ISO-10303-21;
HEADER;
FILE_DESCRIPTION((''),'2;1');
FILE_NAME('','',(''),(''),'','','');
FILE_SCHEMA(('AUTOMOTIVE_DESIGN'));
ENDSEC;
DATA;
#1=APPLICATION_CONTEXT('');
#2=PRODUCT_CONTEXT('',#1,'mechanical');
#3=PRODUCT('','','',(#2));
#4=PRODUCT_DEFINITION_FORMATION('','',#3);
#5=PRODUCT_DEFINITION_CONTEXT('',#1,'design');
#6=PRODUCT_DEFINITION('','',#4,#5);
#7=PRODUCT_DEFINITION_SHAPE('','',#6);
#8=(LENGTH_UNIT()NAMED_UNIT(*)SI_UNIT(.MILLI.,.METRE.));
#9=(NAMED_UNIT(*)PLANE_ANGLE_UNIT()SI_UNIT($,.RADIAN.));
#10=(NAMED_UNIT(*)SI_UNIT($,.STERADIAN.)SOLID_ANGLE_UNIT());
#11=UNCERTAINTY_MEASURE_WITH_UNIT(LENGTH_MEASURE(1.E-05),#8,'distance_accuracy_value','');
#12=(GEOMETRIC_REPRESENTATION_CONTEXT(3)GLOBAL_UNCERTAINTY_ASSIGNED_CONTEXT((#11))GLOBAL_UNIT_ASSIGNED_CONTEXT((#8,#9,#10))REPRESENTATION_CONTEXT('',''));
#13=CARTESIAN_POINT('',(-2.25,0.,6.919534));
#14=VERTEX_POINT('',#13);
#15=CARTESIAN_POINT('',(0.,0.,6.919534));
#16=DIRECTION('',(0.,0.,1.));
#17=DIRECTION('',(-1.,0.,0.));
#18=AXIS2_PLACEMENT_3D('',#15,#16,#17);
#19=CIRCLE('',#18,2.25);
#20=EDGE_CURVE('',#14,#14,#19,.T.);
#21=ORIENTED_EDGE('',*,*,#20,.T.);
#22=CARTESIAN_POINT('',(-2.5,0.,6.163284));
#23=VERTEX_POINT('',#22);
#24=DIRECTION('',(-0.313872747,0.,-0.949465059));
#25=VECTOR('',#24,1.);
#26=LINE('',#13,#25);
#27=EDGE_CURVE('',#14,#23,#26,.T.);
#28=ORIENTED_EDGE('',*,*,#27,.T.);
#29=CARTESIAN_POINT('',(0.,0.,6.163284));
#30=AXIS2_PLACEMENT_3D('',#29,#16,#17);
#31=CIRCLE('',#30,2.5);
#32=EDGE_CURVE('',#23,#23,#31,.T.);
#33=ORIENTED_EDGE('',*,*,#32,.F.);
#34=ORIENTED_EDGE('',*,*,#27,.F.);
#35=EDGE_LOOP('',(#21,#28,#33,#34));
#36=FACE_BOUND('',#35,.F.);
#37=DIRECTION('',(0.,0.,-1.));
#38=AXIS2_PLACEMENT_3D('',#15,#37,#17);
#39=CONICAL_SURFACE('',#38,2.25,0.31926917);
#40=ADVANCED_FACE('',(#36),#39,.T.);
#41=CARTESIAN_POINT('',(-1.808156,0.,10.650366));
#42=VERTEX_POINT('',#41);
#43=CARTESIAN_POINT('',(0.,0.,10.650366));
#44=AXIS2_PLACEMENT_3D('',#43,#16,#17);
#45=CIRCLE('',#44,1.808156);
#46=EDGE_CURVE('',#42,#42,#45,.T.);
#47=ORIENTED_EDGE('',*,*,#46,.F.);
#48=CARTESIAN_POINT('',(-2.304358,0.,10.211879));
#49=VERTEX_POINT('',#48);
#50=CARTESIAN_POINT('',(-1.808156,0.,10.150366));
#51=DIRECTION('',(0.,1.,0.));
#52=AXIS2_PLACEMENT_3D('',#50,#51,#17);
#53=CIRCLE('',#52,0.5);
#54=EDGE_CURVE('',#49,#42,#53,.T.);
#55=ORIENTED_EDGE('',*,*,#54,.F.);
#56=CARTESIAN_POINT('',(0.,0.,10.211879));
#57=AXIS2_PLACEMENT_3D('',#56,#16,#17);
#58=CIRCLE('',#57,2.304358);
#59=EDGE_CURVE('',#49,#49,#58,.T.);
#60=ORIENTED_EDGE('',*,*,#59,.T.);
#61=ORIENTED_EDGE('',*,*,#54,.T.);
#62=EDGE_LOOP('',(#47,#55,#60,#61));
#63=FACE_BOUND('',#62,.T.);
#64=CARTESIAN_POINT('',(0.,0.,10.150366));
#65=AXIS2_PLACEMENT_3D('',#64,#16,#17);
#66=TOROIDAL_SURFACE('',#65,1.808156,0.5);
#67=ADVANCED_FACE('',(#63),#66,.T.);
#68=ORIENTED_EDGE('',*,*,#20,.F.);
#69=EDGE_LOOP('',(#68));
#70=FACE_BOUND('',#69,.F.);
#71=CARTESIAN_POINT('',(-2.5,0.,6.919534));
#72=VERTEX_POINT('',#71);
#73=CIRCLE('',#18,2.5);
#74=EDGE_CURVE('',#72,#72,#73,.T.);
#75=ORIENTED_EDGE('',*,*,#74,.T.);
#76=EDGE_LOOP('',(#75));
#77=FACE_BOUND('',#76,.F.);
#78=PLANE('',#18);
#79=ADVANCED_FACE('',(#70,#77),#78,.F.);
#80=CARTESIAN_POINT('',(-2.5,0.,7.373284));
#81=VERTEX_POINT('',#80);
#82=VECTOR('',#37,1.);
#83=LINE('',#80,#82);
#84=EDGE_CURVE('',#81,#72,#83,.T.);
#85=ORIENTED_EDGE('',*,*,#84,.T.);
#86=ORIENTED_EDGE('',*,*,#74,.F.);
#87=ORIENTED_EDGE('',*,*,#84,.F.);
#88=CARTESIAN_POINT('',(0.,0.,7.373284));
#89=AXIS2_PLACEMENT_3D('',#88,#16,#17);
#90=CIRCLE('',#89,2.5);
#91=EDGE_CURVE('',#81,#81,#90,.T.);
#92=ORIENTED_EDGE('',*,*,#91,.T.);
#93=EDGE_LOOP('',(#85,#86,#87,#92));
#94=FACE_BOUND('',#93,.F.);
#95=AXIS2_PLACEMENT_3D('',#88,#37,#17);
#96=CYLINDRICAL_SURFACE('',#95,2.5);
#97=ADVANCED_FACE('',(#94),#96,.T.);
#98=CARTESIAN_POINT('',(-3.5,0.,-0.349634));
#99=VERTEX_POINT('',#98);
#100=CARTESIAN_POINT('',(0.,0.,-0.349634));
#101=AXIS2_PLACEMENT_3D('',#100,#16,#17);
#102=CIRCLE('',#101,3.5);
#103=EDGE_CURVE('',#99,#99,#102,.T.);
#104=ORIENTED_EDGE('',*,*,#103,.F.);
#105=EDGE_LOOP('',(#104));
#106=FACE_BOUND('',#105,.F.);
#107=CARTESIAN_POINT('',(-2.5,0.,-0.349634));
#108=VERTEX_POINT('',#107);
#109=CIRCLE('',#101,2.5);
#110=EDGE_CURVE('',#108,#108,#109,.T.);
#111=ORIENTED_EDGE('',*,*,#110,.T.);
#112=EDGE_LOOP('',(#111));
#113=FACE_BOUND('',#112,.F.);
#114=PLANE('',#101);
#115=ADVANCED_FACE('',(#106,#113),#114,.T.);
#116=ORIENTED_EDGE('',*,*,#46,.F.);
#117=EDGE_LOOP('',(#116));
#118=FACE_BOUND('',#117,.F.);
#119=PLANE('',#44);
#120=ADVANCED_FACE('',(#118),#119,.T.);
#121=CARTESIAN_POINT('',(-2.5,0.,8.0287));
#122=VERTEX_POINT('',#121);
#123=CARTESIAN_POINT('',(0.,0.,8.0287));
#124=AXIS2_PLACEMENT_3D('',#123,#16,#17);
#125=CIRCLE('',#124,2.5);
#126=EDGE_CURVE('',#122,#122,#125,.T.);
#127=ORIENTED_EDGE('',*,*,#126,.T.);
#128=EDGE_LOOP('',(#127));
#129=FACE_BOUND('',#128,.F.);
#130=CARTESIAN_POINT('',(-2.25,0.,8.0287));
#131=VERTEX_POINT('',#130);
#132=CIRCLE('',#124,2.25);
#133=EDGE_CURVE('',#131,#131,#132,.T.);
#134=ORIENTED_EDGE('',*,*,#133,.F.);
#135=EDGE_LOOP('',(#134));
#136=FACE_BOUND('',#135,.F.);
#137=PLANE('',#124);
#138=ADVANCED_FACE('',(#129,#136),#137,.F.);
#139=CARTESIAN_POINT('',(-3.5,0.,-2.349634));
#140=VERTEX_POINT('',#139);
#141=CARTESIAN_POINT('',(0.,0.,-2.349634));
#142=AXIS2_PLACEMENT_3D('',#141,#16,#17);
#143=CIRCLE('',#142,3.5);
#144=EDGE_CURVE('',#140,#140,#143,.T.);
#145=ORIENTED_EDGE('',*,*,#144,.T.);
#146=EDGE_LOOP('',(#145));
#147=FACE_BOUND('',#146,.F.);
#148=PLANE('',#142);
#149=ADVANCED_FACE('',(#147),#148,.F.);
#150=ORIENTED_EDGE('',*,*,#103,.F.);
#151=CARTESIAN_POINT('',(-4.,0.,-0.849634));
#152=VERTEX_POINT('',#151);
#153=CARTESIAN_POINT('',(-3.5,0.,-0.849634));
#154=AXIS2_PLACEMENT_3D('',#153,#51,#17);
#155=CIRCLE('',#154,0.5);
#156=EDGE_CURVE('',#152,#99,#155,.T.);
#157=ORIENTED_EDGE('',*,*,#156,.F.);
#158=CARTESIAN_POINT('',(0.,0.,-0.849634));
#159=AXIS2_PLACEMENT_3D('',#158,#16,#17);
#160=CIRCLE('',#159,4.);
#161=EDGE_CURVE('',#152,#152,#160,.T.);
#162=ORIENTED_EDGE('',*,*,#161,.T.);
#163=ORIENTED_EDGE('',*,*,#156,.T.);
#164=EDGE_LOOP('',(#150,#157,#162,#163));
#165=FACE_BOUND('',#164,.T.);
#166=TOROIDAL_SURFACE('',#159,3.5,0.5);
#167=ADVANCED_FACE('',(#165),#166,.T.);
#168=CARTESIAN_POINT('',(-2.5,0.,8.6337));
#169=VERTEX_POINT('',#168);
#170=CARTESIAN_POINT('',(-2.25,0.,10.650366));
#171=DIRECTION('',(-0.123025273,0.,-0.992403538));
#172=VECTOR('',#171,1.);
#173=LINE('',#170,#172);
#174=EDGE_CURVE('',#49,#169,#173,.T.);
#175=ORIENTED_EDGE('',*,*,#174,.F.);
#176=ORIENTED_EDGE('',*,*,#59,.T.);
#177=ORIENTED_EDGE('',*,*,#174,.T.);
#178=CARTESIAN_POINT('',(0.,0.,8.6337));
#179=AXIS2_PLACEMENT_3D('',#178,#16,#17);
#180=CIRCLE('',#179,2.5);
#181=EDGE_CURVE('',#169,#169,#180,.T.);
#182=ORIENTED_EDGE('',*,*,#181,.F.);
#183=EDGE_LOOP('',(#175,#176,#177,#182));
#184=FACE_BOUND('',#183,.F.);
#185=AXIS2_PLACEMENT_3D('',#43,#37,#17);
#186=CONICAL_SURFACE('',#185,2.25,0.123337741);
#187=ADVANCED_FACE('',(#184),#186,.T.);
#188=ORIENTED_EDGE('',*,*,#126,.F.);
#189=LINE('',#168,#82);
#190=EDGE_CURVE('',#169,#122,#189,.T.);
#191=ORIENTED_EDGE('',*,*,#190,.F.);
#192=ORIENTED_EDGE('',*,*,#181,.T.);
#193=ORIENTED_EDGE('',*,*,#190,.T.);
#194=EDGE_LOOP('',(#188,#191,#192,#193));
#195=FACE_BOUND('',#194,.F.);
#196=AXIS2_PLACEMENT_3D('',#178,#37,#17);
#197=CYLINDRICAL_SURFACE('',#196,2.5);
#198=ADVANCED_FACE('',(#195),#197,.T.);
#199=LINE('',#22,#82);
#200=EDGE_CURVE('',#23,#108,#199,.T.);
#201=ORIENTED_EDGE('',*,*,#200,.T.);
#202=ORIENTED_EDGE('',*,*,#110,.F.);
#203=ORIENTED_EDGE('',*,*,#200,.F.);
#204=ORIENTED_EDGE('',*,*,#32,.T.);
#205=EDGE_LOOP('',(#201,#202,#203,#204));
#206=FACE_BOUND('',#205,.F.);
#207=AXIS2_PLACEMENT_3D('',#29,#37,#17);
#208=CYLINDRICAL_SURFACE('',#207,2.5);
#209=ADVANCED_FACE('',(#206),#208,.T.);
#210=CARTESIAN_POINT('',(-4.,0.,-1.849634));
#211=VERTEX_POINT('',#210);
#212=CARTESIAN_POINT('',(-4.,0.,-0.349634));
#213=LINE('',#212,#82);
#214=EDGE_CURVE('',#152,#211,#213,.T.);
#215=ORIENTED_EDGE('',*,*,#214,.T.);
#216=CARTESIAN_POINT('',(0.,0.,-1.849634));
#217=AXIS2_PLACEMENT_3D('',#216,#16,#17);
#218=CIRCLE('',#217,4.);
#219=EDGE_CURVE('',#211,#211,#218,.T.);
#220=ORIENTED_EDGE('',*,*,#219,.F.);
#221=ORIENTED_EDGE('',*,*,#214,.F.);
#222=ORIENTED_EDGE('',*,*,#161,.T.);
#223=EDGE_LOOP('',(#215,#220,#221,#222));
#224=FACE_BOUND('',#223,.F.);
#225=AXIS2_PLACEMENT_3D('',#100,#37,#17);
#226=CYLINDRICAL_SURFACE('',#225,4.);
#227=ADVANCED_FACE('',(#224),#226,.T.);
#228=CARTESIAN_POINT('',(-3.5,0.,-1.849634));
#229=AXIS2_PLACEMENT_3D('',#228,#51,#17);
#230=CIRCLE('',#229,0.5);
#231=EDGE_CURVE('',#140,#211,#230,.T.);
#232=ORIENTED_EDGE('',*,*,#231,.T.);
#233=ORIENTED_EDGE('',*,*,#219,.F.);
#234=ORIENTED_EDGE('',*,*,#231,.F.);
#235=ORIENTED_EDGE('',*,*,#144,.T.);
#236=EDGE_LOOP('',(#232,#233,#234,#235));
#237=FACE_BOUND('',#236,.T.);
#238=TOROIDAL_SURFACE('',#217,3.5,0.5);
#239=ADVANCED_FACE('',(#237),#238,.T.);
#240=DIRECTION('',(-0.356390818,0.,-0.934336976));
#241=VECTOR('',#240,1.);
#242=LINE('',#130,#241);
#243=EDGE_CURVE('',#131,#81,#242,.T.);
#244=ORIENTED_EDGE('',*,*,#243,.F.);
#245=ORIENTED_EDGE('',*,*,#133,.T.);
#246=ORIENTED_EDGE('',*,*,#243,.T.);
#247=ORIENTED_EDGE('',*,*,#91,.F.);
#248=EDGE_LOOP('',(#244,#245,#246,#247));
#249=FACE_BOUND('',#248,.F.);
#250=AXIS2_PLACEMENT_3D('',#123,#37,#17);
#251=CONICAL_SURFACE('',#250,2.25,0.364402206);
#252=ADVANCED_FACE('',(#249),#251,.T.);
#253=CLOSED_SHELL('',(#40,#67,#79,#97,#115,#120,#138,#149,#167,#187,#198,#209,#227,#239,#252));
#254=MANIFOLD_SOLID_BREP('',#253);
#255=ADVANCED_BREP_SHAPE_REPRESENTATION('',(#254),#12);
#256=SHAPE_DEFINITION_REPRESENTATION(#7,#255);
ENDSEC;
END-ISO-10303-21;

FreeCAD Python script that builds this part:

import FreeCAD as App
import Part
import Sketcher
from FreeCAD import Vector
Q = App.Units.Quantity


def edges_at(feature, points):
    """Names of the edges that pass closest to the given points."""
    edges = feature.Shape.Edges
    near = lambda p: min(range(len(edges)), key=lambda i: edges[i].distToShape(Part.Vertex(*p))[0])
    return sorted({f"Edge{near(p) + 1}" for p in points})

doc = App.newDocument("Part")
body = doc.addObject("PartDesign::Body", "Body")

# Sketch on XZ plane
sketch1 = body.newObject("Sketcher::SketchObject", "Sketch")
sketch1.AttachmentSupport = (doc.getObject("XZ_Plane"), [""])
sketch1.MapMode = "FlatFace"
sketch1.addGeometry([
    Part.LineSegment(Vector(-4, -2.35, 0), Vector(0, -2.35, 0)),  # 0
    Part.LineSegment(Vector(0, -2.35, 0), Vector(0, 10.65, 0)),  # 1
    Part.LineSegment(Vector(0, 10.65, 0), Vector(-2.25, 10.65, 0)),  # 2
    Part.LineSegment(Vector(-2.25, 10.65, 0), Vector(-2.5, 8.63, 0)),  # 3
    Part.LineSegment(Vector(-2.5, 8.63, 0), Vector(-2.5, 8.03, 0)),  # 4
    Part.LineSegment(Vector(-2.5, 8.03, 0), Vector(-2.25, 8.03, 0)),  # 5
    Part.LineSegment(Vector(-2.25, 8.03, 0), Vector(-2.5, 7.37, 0)),  # 6
    Part.LineSegment(Vector(-2.5, 7.37, 0), Vector(-2.5, 6.92, 0)),  # 7
    Part.LineSegment(Vector(-2.5, 6.92, 0), Vector(-2.25, 6.92, 0)),  # 8
    Part.LineSegment(Vector(-2.25, 6.92, 0), Vector(-2.5, 6.16, 0)),  # 9
    Part.LineSegment(Vector(-2.5, 6.16, 0), Vector(-2.5, -0.35, 0)),  # 10
    Part.LineSegment(Vector(-2.5, -0.35, 0), Vector(-4, -0.35, 0)),  # 11
    Part.LineSegment(Vector(-4, -0.35, 0), Vector(-4, -2.35, 0)),  # 12
], False)
sketch1.addConstraint([
    Sketcher.Constraint("Coincident", 0, 2, 1, 1),
    Sketcher.Constraint("Coincident", 1, 2, 2, 1),
    Sketcher.Constraint("Coincident", 2, 2, 3, 1),
    Sketcher.Constraint("Coincident", 3, 2, 4, 1),
    Sketcher.Constraint("Coincident", 4, 2, 5, 1),
    Sketcher.Constraint("Coincident", 5, 2, 6, 1),
    Sketcher.Constraint("Coincident", 6, 2, 7, 1),
    Sketcher.Constraint("Coincident", 7, 2, 8, 1),
    Sketcher.Constraint("Coincident", 8, 2, 9, 1),
    Sketcher.Constraint("Coincident", 9, 2, 10, 1),
    Sketcher.Constraint("Coincident", 10, 2, 11, 1),
    Sketcher.Constraint("Coincident", 11, 2, 12, 1),
    Sketcher.Constraint("Coincident", 12, 2, 0, 1),
    Sketcher.Constraint("Horizontal", 0),
    Sketcher.Constraint("Vertical", 1),
    Sketcher.Constraint("Horizontal", 2),
    Sketcher.Constraint("Vertical", 4),
    Sketcher.Constraint("Horizontal", 5),
    Sketcher.Constraint("Vertical", 7),
    Sketcher.Constraint("Horizontal", 8),
    Sketcher.Constraint("Vertical", 10),
    Sketcher.Constraint("Horizontal", 11),
    Sketcher.Constraint("Vertical", 12),
    Sketcher.Constraint("PointOnObject", 0, 2, -2),
    Sketcher.Constraint("Vertical", 2, 2, 5, 2),
    Sketcher.Constraint("Vertical", 4, 2, 6, 2),
    Sketcher.Constraint("Vertical", 5, 2, 8, 2),
    Sketcher.Constraint("Vertical", 7, 2, 9, 2),
    Sketcher.Constraint("DistanceX", 0, 1, 0, 2, Q("4 mm")),
    Sketcher.Constraint("DistanceY", 1, 1, 1, 2, Q("13 mm")),
    Sketcher.Constraint("DistanceY", 12, 2, 12, 1, Q("2 mm")),
    Sketcher.Constraint("DistanceX", 11, 2, 11, 1, Q("1.5 mm")),
    Sketcher.Constraint("DistanceX", 2, 2, 2, 1, Q("2.25 mm")),
    Sketcher.Constraint("DistanceY", 4, 2, 4, 1, Q("0.605 mm")),
    Sketcher.Constraint("DistanceY", 9, 2, 6, 2, Q("1.21 mm")),
    Sketcher.Constraint("Distance", 9, Q("0.796501 mm")),
    Sketcher.Constraint("DistanceY", -1, 1, 3, 2, Q("8.6337 mm")),
    Sketcher.Constraint("DistanceY", 10, 2, 10, 1, Q("6.512918 mm")),
    Sketcher.Constraint("Distance", 3, Q("2.032103 mm")),
])
revolution = body.newObject("PartDesign::Revolution", "Revolution")
revolution.Profile = sketch1
revolution.ReferenceAxis = (sketch1, ["V_Axis"])
revolution.Angle = 360
doc.recompute()

fillet = body.newObject("PartDesign::Fillet", "Fillet")
fillet.Base = (revolution, edges_at(revolution, [(4, 0, -2.35)]))
fillet.Radius = 0.5
doc.recompute()

fillet2 = body.newObject("PartDesign::Fillet", "Fillet001")
fillet2.Base = (fillet, edges_at(fillet, [(2.25, 0, 10.65), (4, 0, -0.35)]))
fillet2.Radius = 0.5

doc.recompute()
